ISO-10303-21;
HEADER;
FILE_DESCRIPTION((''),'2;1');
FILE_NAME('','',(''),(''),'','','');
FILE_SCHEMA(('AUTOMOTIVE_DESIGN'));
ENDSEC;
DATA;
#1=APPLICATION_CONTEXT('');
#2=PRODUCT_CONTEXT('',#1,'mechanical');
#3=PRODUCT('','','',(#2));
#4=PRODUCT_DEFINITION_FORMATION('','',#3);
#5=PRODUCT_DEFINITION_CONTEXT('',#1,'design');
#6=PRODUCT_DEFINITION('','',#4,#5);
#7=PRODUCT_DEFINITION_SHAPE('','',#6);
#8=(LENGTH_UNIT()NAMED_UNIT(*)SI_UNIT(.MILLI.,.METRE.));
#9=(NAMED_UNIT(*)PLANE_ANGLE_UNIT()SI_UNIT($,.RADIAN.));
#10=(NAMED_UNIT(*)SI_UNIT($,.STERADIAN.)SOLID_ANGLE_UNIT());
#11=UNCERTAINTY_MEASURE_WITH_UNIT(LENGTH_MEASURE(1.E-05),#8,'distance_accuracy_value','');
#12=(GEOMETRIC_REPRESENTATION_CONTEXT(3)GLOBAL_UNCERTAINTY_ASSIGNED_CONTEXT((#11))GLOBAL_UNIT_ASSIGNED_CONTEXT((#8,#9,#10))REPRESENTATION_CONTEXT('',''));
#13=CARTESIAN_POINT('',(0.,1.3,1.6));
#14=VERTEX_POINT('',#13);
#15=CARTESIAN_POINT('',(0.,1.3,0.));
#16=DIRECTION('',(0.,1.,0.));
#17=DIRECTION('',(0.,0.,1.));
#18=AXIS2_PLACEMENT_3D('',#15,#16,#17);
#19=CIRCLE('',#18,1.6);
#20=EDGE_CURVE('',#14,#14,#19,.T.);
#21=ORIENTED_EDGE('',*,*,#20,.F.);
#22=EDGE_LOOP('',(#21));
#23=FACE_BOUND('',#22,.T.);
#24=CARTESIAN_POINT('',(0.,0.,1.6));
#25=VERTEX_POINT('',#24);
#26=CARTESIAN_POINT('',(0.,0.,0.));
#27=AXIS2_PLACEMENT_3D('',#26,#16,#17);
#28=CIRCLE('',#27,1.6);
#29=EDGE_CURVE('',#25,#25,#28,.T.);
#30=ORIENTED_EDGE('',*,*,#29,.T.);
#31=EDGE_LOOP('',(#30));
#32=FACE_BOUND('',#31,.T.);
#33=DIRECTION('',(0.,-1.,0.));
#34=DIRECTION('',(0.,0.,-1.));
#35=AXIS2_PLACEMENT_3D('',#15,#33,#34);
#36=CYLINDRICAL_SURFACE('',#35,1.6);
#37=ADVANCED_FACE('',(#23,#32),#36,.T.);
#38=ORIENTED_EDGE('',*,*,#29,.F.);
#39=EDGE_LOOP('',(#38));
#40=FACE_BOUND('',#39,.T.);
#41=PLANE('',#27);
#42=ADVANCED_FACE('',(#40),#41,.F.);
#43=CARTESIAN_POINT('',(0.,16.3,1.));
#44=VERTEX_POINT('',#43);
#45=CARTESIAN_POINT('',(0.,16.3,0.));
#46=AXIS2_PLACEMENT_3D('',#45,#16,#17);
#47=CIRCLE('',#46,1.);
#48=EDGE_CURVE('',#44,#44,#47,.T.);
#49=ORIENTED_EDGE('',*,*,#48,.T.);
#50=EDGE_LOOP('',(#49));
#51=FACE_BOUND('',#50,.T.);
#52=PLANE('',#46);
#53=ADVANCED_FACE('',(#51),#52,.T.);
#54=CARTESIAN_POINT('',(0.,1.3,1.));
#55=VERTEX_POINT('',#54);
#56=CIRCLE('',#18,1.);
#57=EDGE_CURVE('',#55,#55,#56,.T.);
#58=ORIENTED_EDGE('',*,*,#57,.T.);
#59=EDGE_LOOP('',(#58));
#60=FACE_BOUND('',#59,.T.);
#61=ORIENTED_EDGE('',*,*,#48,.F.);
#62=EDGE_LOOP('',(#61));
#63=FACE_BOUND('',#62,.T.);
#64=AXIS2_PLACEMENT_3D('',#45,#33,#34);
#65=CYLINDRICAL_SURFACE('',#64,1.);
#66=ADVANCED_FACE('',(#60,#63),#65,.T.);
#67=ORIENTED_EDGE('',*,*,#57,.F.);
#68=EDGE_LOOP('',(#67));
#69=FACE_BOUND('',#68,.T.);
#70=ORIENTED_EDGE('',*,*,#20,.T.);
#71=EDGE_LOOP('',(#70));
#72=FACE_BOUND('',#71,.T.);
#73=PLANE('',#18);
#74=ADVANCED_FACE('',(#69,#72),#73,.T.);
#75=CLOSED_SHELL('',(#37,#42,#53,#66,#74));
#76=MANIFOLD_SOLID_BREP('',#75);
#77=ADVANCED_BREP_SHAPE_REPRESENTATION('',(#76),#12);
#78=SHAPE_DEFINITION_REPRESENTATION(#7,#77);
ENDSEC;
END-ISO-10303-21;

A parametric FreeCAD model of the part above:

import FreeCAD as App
import Part
import Sketcher

V = App.Vector
Q = App.Units.Quantity

doc = App.newDocument("Part")
body = doc.addObject("PartDesign::Body", "Body")

# Sketch on XZ plane
sketch1 = doc.addObject("Sketcher::SketchObject", "Sketch")
body.addObject(sketch1)
sketch1.AttachmentSupport = (doc.XZ_Plane, [""])
sketch1.MapMode = "FlatFace"
sketch1.addGeometry(Part.Circle(V(0, 0, 0), V(0, 0, 1), 1.6), False)
sketch1.addConstraint([
    Sketcher.Constraint("Coincident", 0, 3, -1, 1),
    Sketcher.Constraint("Diameter", 0, Q("3.2 mm")),
])
pad1 = doc.addObject("PartDesign::Pad", "Pad")
body.addObject(pad1)
pad1.Profile = sketch1
pad1.Length = 1.3
pad1.Reversed = True

# Sketch on XZ plane
sketch2 = doc.addObject("Sketcher::SketchObject", "Sketch001")
body.addObject(sketch2)
sketch2.AttachmentSupport = (doc.XZ_Plane, [""])
sketch2.MapMode = "FlatFace"
sketch2.AttachmentOffset = App.Placement(V(0, 0, -1.3), App.Rotation())
sketch2.addGeometry(Part.Circle(V(0, 0, 0), V(0, 0, 1), 1), False)
sketch2.addConstraint([
    Sketcher.Constraint("Coincident", 0, 3, -1, 1),
    Sketcher.Constraint("Diameter", 0, Q("2 mm")),
])
pad2 = doc.addObject("PartDesign::Pad", "Pad001")
body.addObject(pad2)
pad2.Profile = sketch2
pad2.Length = 15
pad2.Reversed = True

doc.recompute()
